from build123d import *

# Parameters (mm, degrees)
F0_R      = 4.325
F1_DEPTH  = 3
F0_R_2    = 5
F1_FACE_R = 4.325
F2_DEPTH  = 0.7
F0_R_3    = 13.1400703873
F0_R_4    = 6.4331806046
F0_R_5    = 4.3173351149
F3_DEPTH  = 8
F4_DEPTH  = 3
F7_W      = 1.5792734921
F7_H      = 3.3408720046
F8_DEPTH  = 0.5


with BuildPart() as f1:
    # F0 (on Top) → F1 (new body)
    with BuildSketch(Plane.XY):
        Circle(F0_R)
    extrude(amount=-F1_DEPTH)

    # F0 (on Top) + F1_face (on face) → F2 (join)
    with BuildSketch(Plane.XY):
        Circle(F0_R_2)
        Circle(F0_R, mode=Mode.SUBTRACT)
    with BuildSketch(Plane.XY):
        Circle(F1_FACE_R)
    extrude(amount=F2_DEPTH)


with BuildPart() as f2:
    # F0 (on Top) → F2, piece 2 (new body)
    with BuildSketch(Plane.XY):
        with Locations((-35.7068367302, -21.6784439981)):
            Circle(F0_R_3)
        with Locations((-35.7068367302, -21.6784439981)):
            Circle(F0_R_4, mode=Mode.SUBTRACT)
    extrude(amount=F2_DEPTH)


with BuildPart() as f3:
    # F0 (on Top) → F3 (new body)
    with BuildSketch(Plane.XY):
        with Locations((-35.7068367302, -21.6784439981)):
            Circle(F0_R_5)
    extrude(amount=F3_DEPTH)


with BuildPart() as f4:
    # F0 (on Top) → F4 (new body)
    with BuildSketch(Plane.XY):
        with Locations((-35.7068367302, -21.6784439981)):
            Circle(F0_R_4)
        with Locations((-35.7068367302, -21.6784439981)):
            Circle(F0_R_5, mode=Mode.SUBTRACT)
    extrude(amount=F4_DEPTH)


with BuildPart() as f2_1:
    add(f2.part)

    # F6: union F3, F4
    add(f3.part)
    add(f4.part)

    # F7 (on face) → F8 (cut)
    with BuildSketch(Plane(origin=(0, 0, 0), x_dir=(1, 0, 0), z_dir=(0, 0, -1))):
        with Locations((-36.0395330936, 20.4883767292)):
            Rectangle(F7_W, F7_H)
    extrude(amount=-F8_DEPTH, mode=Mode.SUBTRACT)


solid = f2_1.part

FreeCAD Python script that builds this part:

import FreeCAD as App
import Part
import Sketcher
from FreeCAD import Vector
Q = App.Units.Quantity


def add_polygon(sketch, points):
    """Adds a closed chain of lines whose ends are joined by coincident constraints."""
    first, n = sketch.GeometryCount, len(points)
    for a, b in zip(points, points[1:] + points[:1]):
        sketch.addGeometry(Part.LineSegment(App.Vector(*a, 0), App.Vector(*b, 0)), False)
    for i in range(n):
        sketch.addConstraint(Sketcher.Constraint("Coincident", first + i, 2, first + (i + 1) % n, 1))

doc = App.newDocument("Part")
body = doc.addObject("PartDesign::Body", "Body")

# Sketch on XY plane
sketch1 = body.newObject("Sketcher::SketchObject", "Sketch")
sketch1.AttachmentSupport = (doc.getObject("XY_Plane"), [""])
sketch1.MapMode = "FlatFace"
sketch1.addGeometry(Part.Circle(Vector(0, 0, 0), Vector(0, 0, 1), 4.325), False)
sketch1.addConstraint([
    Sketcher.Constraint("Coincident", 0, 3, -1, 1),
    Sketcher.Constraint("Diameter", 0, Q("8.65 mm")),
])
pad1 = body.newObject("PartDesign::Pad", "Pad")
pad1.Profile = sketch1
pad1.Length = 3
pad1.Reversed = True

# Sketch on XY plane
sketch2 = body.newObject("Sketcher::SketchObject", "Sketch001")
sketch2.AttachmentSupport = (doc.getObject("XY_Plane"), [""])
sketch2.MapMode = "FlatFace"
sketch2.addGeometry(Part.Circle(Vector(0, 0, 0), Vector(0, 0, 1), 5), False)
sketch2.addConstraint([
    Sketcher.Constraint("Coincident", 0, 3, -1, 1),
    Sketcher.Constraint("Diameter", 0, Q("10 mm")),
])
pad2 = body.newObject("PartDesign::Pad", "Pad001")
pad2.Profile = sketch2
pad2.Length = 0.7
body2 = doc.addObject("PartDesign::Body", "Body001")

# Sketch on XY plane
sketch3 = body2.newObject("Sketcher::SketchObject", "Sketch002")
sketch3.AttachmentSupport = (doc.getObject("XY_Plane001"), [""])
sketch3.MapMode = "FlatFace"
sketch3.addGeometry([
    Part.Circle(Vector(-35.706837, -21.678444, 0), Vector(0, 0, 1), 13.14007),
    Part.Circle(Vector(-35.706837, -21.678444, 0), Vector(0, 0, 1), 6.433181),
], False)
sketch3.addConstraint([
    Sketcher.Constraint("Coincident", 1, 3, 0, 3),
    Sketcher.Constraint("Diameter", 0, Q("26.280141 mm")),
    Sketcher.Constraint("Diameter", 1, Q("12.866361 mm")),
    Sketcher.Constraint("DistanceX", 0, 3, -1, 1, Q("35.706837 mm")),
    Sketcher.Constraint("DistanceY", 0, 3, -1, 1, Q("21.678444 mm")),
])
pad3 = body2.newObject("PartDesign::Pad", "Pad002")
pad3.Profile = sketch3
pad3.Length = 0.7
body3 = doc.addObject("PartDesign::Body", "Body002")

# Sketch on XY plane
sketch4 = body3.newObject("Sketcher::SketchObject", "Sketch003")
sketch4.AttachmentSupport = (doc.getObject("XY_Plane002"), [""])
sketch4.MapMode = "FlatFace"
sketch4.addGeometry(Part.Circle(Vector(-35.706837, -21.678444, 0), Vector(0, 0, 1), 4.317335), False)
sketch4.addConstraint([
    Sketcher.Constraint("Diameter", 0, Q("8.63467 mm")),
    Sketcher.Constraint("DistanceX", 0, 3, -1, 1, Q("35.706837 mm")),
    Sketcher.Constraint("DistanceY", 0, 3, -1, 1, Q("21.678444 mm")),
])
pad4 = body3.newObject("PartDesign::Pad", "Pad003")
pad4.Profile = sketch4
pad4.Length = 8
body4 = doc.addObject("PartDesign::Body", "Body003")

# Sketch on XY plane
sketch5 = body4.newObject("Sketcher::SketchObject", "Sketch004")
sketch5.AttachmentSupport = (doc.getObject("XY_Plane003"), [""])
sketch5.MapMode = "FlatFace"
sketch5.addGeometry([
    Part.Circle(Vector(-35.706837, -21.678444, 0), Vector(0, 0, 1), 6.433181),
    Part.Circle(Vector(-35.706837, -21.678444, 0), Vector(0, 0, 1), 4.317335),
], False)
sketch5.addConstraint([
    Sketcher.Constraint("Coincident", 1, 3, 0, 3),
    Sketcher.Constraint("Diameter", 0, Q("12.866361 mm")),
    Sketcher.Constraint("Diameter", 1, Q("8.63467 mm")),
    Sketcher.Constraint("DistanceX", 0, 3, -1, 1, Q("35.706837 mm")),
    Sketcher.Constraint("DistanceY", 0, 3, -1, 1, Q("21.678444 mm")),
])
pad5 = body4.newObject("PartDesign::Pad", "Pad004")
pad5.Profile = sketch5
pad5.Length = 3
body2.AllowCompound = True
doc.recompute()

boolean = body2.newObject("PartDesign::Boolean", "Boolean")
boolean.Type = "Fuse"
boolean.addObjects([body3])
doc.recompute()

boolean2 = body2.newObject("PartDesign::Boolean", "Boolean001")
boolean2.Type = "Fuse"
boolean2.addObjects([body4])

# Sketch on XY plane
sketch6 = body2.newObject("Sketcher::SketchObject", "Sketch005")
sketch6.AttachmentSupport = (doc.getObject("XY_Plane001"), [""])
sketch6.MapMode = "FlatFace"
add_polygon(sketch6, [(-36.82917, -22.158813), (-36.82917, -18.817941), (-35.249896, -18.817941), (-35.249896, -22.158813)])  # lines 0-3
sketch6.addConstraint([
    Sketcher.Constraint("Vertical", 0),
    Sketcher.Constraint("Horizontal", 1),
    Sketcher.Constraint("Vertical", 2),
    Sketcher.Constraint("Horizontal", 3),
    Sketcher.Constraint("DistanceX", 1, 1, 1, 2, Q("1.579273 mm")),
    Sketcher.Constraint("DistanceY", 0, 1, 0, 2, Q("3.340872 mm")),
    Sketcher.Constraint("DistanceX", 0, 2, -1, 1, Q("36.82917 mm")),
    Sketcher.Constraint("DistanceY", 0, 2, -1, 1, Q("18.817941 mm")),
])
pocket1 = body2.newObject("PartDesign::Pocket", "Pocket")
pocket1.Profile = sketch6
pocket1.Length = 0.5
pocket1.Reversed = True
body.Visibility = False

doc.recompute()
